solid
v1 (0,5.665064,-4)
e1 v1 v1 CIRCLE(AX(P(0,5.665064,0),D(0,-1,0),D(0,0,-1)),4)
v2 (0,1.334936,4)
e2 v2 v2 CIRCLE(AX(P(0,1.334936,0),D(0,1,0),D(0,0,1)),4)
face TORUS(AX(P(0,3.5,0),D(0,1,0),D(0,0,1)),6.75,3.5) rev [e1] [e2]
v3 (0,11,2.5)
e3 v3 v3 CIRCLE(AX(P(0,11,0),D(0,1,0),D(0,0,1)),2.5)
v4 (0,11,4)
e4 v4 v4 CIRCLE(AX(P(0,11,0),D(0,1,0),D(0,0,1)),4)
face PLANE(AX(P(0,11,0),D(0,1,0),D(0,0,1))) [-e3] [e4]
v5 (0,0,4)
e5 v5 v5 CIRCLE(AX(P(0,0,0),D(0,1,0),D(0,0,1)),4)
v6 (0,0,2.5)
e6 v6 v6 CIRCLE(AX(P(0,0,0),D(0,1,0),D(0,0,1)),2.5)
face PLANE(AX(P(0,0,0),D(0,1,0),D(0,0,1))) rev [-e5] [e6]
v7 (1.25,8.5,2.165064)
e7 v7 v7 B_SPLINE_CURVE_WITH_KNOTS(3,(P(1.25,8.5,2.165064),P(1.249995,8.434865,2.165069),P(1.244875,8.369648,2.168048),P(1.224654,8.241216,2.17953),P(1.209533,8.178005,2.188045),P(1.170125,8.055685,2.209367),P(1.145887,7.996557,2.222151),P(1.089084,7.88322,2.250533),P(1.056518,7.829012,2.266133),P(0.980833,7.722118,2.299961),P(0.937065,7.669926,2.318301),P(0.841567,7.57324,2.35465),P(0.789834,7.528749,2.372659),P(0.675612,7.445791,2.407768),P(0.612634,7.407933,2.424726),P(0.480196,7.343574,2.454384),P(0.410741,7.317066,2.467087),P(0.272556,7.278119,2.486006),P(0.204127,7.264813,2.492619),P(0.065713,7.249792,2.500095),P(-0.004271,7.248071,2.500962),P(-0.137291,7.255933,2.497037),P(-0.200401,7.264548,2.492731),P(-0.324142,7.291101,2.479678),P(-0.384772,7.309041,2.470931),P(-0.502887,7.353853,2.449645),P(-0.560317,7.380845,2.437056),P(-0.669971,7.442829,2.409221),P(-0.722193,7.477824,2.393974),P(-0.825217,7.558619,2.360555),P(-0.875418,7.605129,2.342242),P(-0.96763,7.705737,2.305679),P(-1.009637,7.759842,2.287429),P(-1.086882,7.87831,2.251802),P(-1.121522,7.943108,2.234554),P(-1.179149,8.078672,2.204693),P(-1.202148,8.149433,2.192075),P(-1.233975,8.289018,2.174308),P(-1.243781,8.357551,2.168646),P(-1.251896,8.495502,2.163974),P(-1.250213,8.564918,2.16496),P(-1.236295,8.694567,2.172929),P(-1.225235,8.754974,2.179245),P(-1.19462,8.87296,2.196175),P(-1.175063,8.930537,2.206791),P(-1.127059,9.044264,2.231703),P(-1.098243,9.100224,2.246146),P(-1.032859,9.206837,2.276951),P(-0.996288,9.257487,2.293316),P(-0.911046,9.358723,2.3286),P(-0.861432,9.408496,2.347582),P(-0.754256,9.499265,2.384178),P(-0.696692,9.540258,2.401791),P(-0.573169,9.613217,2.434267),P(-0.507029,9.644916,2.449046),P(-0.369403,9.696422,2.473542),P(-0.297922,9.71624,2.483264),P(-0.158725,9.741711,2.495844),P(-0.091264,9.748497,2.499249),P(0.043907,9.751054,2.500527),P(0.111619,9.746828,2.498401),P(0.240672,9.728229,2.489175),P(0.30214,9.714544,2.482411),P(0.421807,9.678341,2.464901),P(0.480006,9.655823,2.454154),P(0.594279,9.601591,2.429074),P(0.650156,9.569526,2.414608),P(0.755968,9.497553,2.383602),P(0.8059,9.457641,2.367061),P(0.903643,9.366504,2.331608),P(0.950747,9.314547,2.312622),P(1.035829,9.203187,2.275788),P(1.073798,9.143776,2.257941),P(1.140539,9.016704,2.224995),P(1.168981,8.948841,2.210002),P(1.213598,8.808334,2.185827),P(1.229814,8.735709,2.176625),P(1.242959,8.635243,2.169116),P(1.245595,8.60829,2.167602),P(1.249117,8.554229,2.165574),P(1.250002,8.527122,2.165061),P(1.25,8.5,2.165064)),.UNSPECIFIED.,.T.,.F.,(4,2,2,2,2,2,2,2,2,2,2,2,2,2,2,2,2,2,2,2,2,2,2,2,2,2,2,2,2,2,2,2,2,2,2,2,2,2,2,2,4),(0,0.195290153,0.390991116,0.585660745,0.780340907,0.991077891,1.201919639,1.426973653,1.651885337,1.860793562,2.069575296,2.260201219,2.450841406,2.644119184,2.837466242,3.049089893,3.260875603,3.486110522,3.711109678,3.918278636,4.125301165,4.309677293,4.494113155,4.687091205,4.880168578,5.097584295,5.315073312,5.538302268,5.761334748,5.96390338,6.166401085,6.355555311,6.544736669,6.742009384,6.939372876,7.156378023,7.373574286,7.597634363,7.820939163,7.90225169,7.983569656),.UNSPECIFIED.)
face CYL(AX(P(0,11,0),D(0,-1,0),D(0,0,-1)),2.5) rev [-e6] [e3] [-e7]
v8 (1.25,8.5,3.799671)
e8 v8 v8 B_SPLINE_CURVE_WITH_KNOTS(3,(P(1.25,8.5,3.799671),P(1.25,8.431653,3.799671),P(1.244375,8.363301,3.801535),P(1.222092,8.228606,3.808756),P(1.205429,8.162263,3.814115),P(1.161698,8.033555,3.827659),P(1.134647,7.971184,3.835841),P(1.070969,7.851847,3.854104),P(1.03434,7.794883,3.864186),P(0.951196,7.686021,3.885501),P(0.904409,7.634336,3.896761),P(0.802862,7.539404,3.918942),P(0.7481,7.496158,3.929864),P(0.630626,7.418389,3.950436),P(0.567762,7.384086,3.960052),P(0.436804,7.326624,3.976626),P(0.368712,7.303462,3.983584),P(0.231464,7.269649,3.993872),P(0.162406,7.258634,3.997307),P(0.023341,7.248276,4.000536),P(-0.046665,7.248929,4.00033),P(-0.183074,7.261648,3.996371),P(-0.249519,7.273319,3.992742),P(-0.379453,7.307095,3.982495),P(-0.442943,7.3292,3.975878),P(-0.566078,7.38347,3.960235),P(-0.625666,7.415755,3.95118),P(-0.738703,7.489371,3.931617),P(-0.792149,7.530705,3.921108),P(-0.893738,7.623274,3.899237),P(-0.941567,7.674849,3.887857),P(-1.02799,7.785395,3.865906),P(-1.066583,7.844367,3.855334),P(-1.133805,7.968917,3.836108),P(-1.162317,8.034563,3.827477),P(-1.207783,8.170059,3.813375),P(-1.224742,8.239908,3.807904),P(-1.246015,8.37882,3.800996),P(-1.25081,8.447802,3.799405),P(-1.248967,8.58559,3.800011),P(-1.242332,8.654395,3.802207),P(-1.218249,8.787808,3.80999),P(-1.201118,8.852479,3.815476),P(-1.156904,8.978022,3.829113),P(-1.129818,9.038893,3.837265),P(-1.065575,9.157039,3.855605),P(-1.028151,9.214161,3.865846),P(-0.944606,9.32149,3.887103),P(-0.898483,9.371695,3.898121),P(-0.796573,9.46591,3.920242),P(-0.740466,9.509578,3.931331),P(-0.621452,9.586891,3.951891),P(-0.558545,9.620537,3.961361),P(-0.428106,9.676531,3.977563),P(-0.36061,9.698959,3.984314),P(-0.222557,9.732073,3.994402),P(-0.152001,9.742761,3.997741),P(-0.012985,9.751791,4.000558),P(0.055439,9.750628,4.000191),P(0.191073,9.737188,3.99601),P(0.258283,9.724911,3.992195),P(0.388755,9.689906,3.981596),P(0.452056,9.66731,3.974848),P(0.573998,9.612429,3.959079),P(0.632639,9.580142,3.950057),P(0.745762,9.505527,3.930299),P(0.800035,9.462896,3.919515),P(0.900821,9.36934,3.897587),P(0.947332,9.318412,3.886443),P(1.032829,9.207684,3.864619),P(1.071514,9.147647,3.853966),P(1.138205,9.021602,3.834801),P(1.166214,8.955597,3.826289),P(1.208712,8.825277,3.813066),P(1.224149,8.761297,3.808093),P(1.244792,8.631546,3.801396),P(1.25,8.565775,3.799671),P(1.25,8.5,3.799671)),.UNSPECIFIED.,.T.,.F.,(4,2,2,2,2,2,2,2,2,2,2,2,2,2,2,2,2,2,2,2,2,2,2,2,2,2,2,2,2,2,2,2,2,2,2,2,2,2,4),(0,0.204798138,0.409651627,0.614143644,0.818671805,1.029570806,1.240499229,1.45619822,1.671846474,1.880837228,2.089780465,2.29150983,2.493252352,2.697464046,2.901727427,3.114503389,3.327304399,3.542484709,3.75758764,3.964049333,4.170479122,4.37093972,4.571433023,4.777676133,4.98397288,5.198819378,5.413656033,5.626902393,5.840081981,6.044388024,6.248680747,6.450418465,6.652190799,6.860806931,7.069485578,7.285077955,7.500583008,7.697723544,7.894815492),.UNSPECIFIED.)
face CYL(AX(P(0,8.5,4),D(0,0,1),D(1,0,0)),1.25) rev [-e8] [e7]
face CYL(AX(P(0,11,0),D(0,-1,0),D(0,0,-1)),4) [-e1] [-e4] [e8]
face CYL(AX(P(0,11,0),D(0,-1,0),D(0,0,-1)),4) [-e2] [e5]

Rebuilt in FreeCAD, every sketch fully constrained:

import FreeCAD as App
import Part
import Sketcher

V = App.Vector
Q = App.Units.Quantity

doc = App.newDocument("Part")
body = doc.addObject("PartDesign::Body", "Body")

# Sketch on XZ plane
sketch1 = body.newObject("Sketcher::SketchObject", "Sketch")
sketch1.AttachmentSupport = (doc.getObject("XZ_Plane"), [""])
sketch1.MapMode = "FlatFace"
sketch1.addGeometry([
    Part.Circle(V(0, 0, 0), V(0, 0, 1), 4),
    Part.Circle(V(0, 0, 0), V(0, 0, 1), 2.5),
], False)
sketch1.addConstraint([
    Sketcher.Constraint("Coincident", 0, 3, -1, 1),
    Sketcher.Constraint("Coincident", 1, 3, -1, 1),
    Sketcher.Constraint("Diameter", 0, Q("8 mm")),
    Sketcher.Constraint("Diameter", 1, Q("5 mm")),
])
pad1 = body.newObject("PartDesign::Pad", "Pad")
pad1.Profile = sketch1
pad1.Length = 11
pad1.Reversed = True

# Sketch on XY plane
sketch2 = body.newObject("Sketcher::SketchObject", "Sketch001")
sketch2.AttachmentSupport = (doc.getObject("XY_Plane"), [""])
sketch2.MapMode = "FlatFace"
sketch2.AttachmentOffset = App.Placement(V(0, 0, 4), App.Rotation())
sketch2.addGeometry(Part.Circle(V(0, 8.5, 0), V(0, 0, 1), 1.2), False)
sketch2.addConstraint([
    Sketcher.Constraint("PointOnObject", 0, 3, -2),
    Sketcher.Constraint("Diameter", 0, Q("2.5 mm")),
    Sketcher.Constraint("DistanceY", -1, 1, 0, 3, Q("8.5 mm")),
])
pocket1 = body.newObject("PartDesign::Pocket", "Pocket")
pocket1.Profile = sketch2
pocket1.Type = "UpToFirst"

# Sketch on XY plane
sketch3 = body.newObject("Sketcher::SketchObject", "Sketch002")
sketch3.AttachmentSupport = (doc.getObject("XY_Plane"), [""])
sketch3.MapMode = "FlatFace"
sketch3.addGeometry(Part.Circle(V(6.8, 3.5, 0), V(0, 0, 1), 3.5), False)
sketch3.addConstraint([
    Sketcher.Constraint("Diameter", 0, Q("7 mm")),
    Sketcher.Constraint("DistanceY", -1, 1, 0, 3, Q("3.5 mm")),
    Sketcher.Constraint("DistanceX", -1, 1, 0, 3, Q("6.75 mm")),
])
groove = body.newObject("PartDesign::Groove", "Groove")
groove.Profile = sketch3
groove.ReferenceAxis = (sketch3, ["V_Axis"])
groove.Angle = 360

doc.recompute()
